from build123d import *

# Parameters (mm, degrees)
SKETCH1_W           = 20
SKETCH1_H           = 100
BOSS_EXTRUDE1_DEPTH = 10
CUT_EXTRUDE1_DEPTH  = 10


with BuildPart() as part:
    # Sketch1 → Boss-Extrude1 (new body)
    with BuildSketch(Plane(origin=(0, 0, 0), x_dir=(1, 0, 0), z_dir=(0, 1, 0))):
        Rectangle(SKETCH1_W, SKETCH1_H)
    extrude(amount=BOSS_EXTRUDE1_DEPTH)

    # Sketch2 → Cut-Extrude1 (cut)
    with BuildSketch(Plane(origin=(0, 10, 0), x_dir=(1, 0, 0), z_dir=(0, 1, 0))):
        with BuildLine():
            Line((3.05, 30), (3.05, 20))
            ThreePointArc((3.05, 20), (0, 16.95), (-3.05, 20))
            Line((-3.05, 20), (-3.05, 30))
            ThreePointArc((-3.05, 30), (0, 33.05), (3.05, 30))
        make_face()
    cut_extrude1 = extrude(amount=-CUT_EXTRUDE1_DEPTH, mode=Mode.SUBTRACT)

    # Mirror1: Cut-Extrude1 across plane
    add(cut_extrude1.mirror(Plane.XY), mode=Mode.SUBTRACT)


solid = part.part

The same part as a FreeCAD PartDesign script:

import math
import FreeCAD as App
import Part
import Sketcher
from FreeCAD import Vector
Q = App.Units.Quantity

doc = App.newDocument("Part")
body = doc.addObject("PartDesign::Body", "Body")

# Sketch on XZ plane
sketch1 = body.newObject("Sketcher::SketchObject", "Sketch")
sketch1.AttachmentSupport = (doc.getObject("XZ_Plane"), [""])
sketch1.MapMode = "FlatFace"
sketch1.addGeometry(Part.LineSegment(Vector(-10, -50, 0), Vector(-10, 50, 0)), False)
sketch1.addGeometry(Part.LineSegment(Vector(-10, 50, 0), Vector(10, 50, 0)), False)
sketch1.addGeometry(Part.LineSegment(Vector(10, 50, 0), Vector(10, -50, 0)), False)
sketch1.addGeometry(Part.LineSegment(Vector(10, -50, 0), Vector(-10, -50, 0)), False)
sketch1.addConstraint(Sketcher.Constraint("Coincident", 0, 2, 1, 1))
sketch1.addConstraint(Sketcher.Constraint("Coincident", 1, 2, 2, 1))
sketch1.addConstraint(Sketcher.Constraint("Coincident", 2, 2, 3, 1))
sketch1.addConstraint(Sketcher.Constraint("Coincident", 3, 2, 0, 1))
sketch1.addConstraint(Sketcher.Constraint("Vertical", 0))
sketch1.addConstraint(Sketcher.Constraint("Horizontal", 1))
sketch1.addConstraint(Sketcher.Constraint("Vertical", 2))
sketch1.addConstraint(Sketcher.Constraint("Horizontal", 3))
sketch1.addConstraint(Sketcher.Constraint("Symmetric", 0, 2, 2, 2, -1, 1))
sketch1.addConstraint(Sketcher.Constraint("DistanceX", 1, 1, 1, 2, Q("20 mm")))
sketch1.addConstraint(Sketcher.Constraint("DistanceY", 0, 1, 0, 2, Q("100 mm")))
pad1 = body.newObject("PartDesign::Pad", "Pad")
pad1.Profile = sketch1
pad1.Length = 10
pad1.Reversed = True

# Sketch on XZ plane
sketch2 = body.newObject("Sketcher::SketchObject", "Sketch001")
sketch2.AttachmentSupport = (doc.getObject("XZ_Plane"), [""])
sketch2.MapMode = "FlatFace"
sketch2.AttachmentOffset = App.Placement(Vector(0, 0, -10), App.Rotation())
sketch2.addGeometry(Part.LineSegment(Vector(3.05, -20, 0), Vector(3.05, -30, 0)), False)
sketch2.addGeometry(Part.ArcOfCircle(Part.Circle(Vector(0, -30, 0), Vector(0, 0, 1), 3.05), math.radians(180), math.radians(360)), False)
sketch2.addGeometry(Part.LineSegment(Vector(-3.05, -30, 0), Vector(-3.05, -20, 0)), False)
sketch2.addGeometry(Part.ArcOfCircle(Part.Circle(Vector(0, -20, 0), Vector(0, 0, 1), 3.05), math.radians(0), math.radians(180)), False)
sketch2.addConstraint(Sketcher.Constraint("Tangent", 0, 2, 1, 2))
sketch2.addConstraint(Sketcher.Constraint("Tangent", 1, 1, 2, 1))
sketch2.addConstraint(Sketcher.Constraint("Tangent", 2, 2, 3, 2))
sketch2.addConstraint(Sketcher.Constraint("Tangent", 3, 1, 0, 1))
sketch2.addConstraint(Sketcher.Constraint("Vertical", 0))
sketch2.addConstraint(Sketcher.Constraint("Vertical", 2))
sketch2.addConstraint(Sketcher.Constraint("PointOnObject", 1, 3, -2))
sketch2.addConstraint(Sketcher.Constraint("DistanceY", 0, 2, 0, 1, Q("10 mm")))
sketch2.addConstraint(Sketcher.Constraint("Radius", 1, Q("3.05 mm")))
sketch2.addConstraint(Sketcher.Constraint("DistanceY", 1, 3, -1, 1, Q("30 mm")))
pocket1 = body.newObject("PartDesign::Pocket", "Pocket")
pocket1.Profile = sketch2
pocket1.Length = 10
pocket1.Reversed = True
doc.recompute()

mirrored = body.newObject("PartDesign::Mirrored", "Mirrored")
mirrored.Originals = [pocket1]
mirrored.MirrorPlane = (doc.getObject("XY_Plane"), [""])
body.Tip = mirrored

doc.recompute()
